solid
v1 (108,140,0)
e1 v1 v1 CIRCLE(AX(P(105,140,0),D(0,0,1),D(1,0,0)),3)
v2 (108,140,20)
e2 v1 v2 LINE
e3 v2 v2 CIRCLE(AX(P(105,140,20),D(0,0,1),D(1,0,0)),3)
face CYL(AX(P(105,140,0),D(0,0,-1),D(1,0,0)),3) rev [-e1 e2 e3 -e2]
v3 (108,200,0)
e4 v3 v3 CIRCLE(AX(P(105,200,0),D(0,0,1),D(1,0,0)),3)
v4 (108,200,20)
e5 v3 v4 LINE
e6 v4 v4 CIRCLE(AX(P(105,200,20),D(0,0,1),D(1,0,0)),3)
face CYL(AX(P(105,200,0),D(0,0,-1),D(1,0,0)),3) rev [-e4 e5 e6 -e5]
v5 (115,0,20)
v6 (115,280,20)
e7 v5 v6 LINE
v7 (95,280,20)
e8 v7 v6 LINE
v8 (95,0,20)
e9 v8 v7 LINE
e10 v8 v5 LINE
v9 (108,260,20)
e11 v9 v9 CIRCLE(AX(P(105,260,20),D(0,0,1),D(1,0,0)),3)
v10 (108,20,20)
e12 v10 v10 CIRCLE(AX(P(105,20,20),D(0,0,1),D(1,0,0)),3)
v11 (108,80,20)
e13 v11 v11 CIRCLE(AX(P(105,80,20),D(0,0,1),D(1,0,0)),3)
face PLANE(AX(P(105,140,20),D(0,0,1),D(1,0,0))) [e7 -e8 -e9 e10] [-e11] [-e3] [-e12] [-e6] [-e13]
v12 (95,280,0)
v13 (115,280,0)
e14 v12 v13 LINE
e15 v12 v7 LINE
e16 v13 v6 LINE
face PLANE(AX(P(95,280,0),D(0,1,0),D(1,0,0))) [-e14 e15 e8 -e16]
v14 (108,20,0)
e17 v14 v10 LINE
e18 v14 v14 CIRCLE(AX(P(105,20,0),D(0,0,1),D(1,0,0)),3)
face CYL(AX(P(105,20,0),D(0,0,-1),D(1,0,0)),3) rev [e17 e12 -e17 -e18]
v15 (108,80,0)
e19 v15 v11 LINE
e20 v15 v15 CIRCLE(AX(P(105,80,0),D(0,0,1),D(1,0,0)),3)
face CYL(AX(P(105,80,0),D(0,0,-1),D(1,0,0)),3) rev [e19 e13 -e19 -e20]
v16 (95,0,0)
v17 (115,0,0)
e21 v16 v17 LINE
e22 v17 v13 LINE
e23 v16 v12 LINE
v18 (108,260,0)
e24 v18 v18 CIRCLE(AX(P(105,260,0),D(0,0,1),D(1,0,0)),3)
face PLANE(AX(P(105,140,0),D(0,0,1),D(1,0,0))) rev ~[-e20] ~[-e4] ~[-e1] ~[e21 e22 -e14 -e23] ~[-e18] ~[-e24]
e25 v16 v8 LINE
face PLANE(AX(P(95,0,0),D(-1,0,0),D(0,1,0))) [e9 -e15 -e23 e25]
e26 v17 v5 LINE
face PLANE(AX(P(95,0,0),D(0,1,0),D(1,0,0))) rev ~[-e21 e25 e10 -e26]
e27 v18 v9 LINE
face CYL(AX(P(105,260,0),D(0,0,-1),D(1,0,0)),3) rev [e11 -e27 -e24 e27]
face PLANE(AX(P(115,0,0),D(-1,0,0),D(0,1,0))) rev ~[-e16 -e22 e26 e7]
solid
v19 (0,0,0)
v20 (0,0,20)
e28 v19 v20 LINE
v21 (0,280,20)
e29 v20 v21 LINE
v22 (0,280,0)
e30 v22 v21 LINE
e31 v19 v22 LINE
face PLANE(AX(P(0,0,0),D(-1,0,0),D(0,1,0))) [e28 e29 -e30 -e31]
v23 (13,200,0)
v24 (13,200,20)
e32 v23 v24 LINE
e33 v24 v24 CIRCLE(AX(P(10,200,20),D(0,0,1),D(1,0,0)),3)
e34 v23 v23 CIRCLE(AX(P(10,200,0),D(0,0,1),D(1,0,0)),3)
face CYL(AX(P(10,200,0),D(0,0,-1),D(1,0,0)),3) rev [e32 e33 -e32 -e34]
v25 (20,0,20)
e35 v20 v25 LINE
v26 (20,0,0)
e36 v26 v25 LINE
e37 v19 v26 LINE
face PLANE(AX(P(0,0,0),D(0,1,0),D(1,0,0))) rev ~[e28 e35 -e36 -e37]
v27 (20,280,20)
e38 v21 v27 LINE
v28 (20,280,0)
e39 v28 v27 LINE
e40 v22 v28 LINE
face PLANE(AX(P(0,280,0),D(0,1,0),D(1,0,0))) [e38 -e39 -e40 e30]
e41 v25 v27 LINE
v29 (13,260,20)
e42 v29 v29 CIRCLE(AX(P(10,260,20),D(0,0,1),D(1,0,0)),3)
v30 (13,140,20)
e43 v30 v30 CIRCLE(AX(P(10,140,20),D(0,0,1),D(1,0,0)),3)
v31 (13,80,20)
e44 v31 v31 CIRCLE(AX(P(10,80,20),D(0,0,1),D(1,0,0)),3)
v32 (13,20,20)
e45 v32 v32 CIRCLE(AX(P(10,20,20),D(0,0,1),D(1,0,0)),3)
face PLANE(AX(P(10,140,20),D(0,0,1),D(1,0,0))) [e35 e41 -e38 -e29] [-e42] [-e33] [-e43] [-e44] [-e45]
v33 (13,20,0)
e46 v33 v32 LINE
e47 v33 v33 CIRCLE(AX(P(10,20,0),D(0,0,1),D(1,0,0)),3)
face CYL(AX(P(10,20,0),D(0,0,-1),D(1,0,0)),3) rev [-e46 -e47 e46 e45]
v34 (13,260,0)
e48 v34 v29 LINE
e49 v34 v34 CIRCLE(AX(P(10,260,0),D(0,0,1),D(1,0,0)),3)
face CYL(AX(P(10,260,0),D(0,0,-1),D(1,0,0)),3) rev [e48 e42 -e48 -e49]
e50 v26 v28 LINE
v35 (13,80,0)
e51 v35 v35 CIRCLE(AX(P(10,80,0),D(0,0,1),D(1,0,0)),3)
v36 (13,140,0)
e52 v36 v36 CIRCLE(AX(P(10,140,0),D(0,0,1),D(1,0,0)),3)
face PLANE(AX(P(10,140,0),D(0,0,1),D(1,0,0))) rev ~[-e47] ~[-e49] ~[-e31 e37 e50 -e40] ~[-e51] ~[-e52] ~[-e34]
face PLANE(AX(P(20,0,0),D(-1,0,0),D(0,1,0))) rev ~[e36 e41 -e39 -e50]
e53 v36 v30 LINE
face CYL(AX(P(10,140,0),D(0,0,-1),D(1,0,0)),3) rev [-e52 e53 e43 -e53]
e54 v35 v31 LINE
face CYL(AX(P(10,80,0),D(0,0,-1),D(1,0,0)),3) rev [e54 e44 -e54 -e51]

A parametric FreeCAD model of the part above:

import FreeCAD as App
import Part
import Sketcher

doc = App.newDocument("Part")
body = doc.addObject("PartDesign::Body", "Body")
body.AllowCompound = True

# Sketch on XY plane
sketch1 = body.newObject("Sketcher::SketchObject", "Sketch")
sketch1.AttachmentSupport = (doc.getObject("XY_Plane"), [""])
sketch1.MapMode = "FlatFace"
sketch1.addGeometry(Part.LineSegment(App.Vector(0, 280, 0), App.Vector(0, 0, 0)), False)
sketch1.addGeometry(Part.LineSegment(App.Vector(0, 0, 0), App.Vector(20, 0, 0)), False)
sketch1.addGeometry(Part.LineSegment(App.Vector(20, 0, 0), App.Vector(20, 280, 0)), False)
sketch1.addGeometry(Part.LineSegment(App.Vector(20, 280, 0), App.Vector(0, 280, 0)), False)
sketch1.addGeometry(Part.Circle(App.Vector(10, 20, 0), App.Vector(0, 0, 1), 3), False)
sketch1.addGeometry(Part.Circle(App.Vector(10, 80, 0), App.Vector(0, 0, 1), 3), False)
sketch1.addGeometry(Part.Circle(App.Vector(10, 140, 0), App.Vector(0, 0, 1), 3), False)
sketch1.addGeometry(Part.Circle(App.Vector(10, 200, 0), App.Vector(0, 0, 1), 3), False)
sketch1.addGeometry(Part.Circle(App.Vector(10, 260, 0), App.Vector(0, 0, 1), 3), False)
sketch1.addGeometry(Part.LineSegment(App.Vector(95, 280, 0), App.Vector(95, 0, 0)), False)
sketch1.addGeometry(Part.LineSegment(App.Vector(95, 0, 0), App.Vector(115, 0, 0)), False)
sketch1.addGeometry(Part.LineSegment(App.Vector(115, 0, 0), App.Vector(115, 280, 0)), False)
sketch1.addGeometry(Part.LineSegment(App.Vector(115, 280, 0), App.Vector(95, 280, 0)), False)
sketch1.addGeometry(Part.Circle(App.Vector(105, 20, 0), App.Vector(0, 0, 1), 3), False)
sketch1.addGeometry(Part.Circle(App.Vector(105, 80, 0), App.Vector(0, 0, 1), 3), False)
sketch1.addGeometry(Part.Circle(App.Vector(105, 140, 0), App.Vector(0, 0, 1), 3), False)
sketch1.addGeometry(Part.Circle(App.Vector(105, 200, 0), App.Vector(0, 0, 1), 3), False)
sketch1.addGeometry(Part.Circle(App.Vector(105, 260, 0), App.Vector(0, 0, 1), 3), False)
sketch1.addConstraint(Sketcher.Constraint("Coincident", 0, 2, 1, 1))
sketch1.addConstraint(Sketcher.Constraint("Coincident", 1, 2, 2, 1))
sketch1.addConstraint(Sketcher.Constraint("Coincident", 2, 2, 3, 1))
sketch1.addConstraint(Sketcher.Constraint("Coincident", 3, 2, 0, 1))
sketch1.addConstraint(Sketcher.Constraint("Coincident", 9, 2, 10, 1))
sketch1.addConstraint(Sketcher.Constraint("Coincident", 10, 2, 11, 1))
sketch1.addConstraint(Sketcher.Constraint("Coincident", 11, 2, 12, 1))
sketch1.addConstraint(Sketcher.Constraint("Coincident", 12, 2, 9, 1))
sketch1.addConstraint(Sketcher.Constraint("Vertical", 0))
sketch1.addConstraint(Sketcher.Constraint("Horizontal", 1))
sketch1.addConstraint(Sketcher.Constraint("Vertical", 2))
sketch1.addConstraint(Sketcher.Constraint("Horizontal", 3))
sketch1.addConstraint(Sketcher.Constraint("Vertical", 9))
sketch1.addConstraint(Sketcher.Constraint("Horizontal", 10))
sketch1.addConstraint(Sketcher.Constraint("Vertical", 11))
sketch1.addConstraint(Sketcher.Constraint("Horizontal", 12))
sketch1.addConstraint(Sketcher.Constraint("Coincident", 0, 2, -1, 1))
sketch1.addConstraint(Sketcher.Constraint("Equal", 4, 5))
sketch1.addConstraint(Sketcher.Constraint("Equal", 5, 6))
sketch1.addConstraint(Sketcher.Constraint("Equal", 6, 7))
sketch1.addConstraint(Sketcher.Constraint("Equal", 7, 8))
sketch1.addConstraint(Sketcher.Constraint("Equal", 8, 13))
sketch1.addConstraint(Sketcher.Constraint("Equal", 13, 14))
sketch1.addConstraint(Sketcher.Constraint("Equal", 14, 15))
sketch1.addConstraint(Sketcher.Constraint("Equal", 15, 16))
sketch1.addConstraint(Sketcher.Constraint("Equal", 16, 17))
sketch1.addConstraint(Sketcher.Constraint("PointOnObject", 9, 2, -1))
sketch1.addConstraint(Sketcher.Constraint("Horizontal", 4, 3, 13, 3))
sketch1.addConstraint(Sketcher.Constraint("Horizontal", 5, 3, 14, 3))
sketch1.addConstraint(Sketcher.Constraint("Horizontal", 6, 3, 15, 3))
sketch1.addConstraint(Sketcher.Constraint("Horizontal", 7, 3, 16, 3))
sketch1.addConstraint(Sketcher.Constraint("Horizontal", 8, 3, 17, 3))
sketch1.addConstraint(Sketcher.Constraint("Horizontal", 3, 2, 11, 2))
sketch1.addConstraint(Sketcher.Constraint("Vertical", 4, 3, 5, 3))
sketch1.addConstraint(Sketcher.Constraint("Vertical", 5, 3, 6, 3))
sketch1.addConstraint(Sketcher.Constraint("Vertical", 6, 3, 7, 3))
sketch1.addConstraint(Sketcher.Constraint("Vertical", 7, 3, 8, 3))
sketch1.addConstraint(Sketcher.Constraint("Vertical", 13, 3, 14, 3))
sketch1.addConstraint(Sketcher.Constraint("Vertical", 14, 3, 15, 3))
sketch1.addConstraint(Sketcher.Constraint("Vertical", 15, 3, 16, 3))
sketch1.addConstraint(Sketcher.Constraint("Vertical", 16, 3, 17, 3))
sketch1.addConstraint(Sketcher.Constraint("Equal", 3, 10))
sketch1.addConstraint(Sketcher.Constraint("Diameter", 4, 6.0))
sketch1.addConstraint(Sketcher.Constraint("DistanceX", 1, 1, 1, 2, 20.0))
sketch1.addConstraint(Sketcher.Constraint("DistanceY", 0, 2, 0, 1, 280.0))
sketch1.addConstraint(Sketcher.Constraint("DistanceX", -1, 1, 4, 3, 10.0))
sketch1.addConstraint(Sketcher.Constraint("DistanceY", -1, 1, 4, 3, 20.0))
sketch1.addConstraint(Sketcher.Constraint("DistanceY", -1, 1, 5, 3, 80.0))
sketch1.addConstraint(Sketcher.Constraint("DistanceY", -1, 1, 6, 3, 140.0))
sketch1.addConstraint(Sketcher.Constraint("DistanceY", -1, 1, 7, 3, 200.0))
sketch1.addConstraint(Sketcher.Constraint("DistanceY", -1, 1, 8, 3, 260.0))
sketch1.addConstraint(Sketcher.Constraint("DistanceX", -1, 1, 13, 3, 105.0))
sketch1.addConstraint(Sketcher.Constraint("DistanceX", -1, 1, 9, 2, 95.0))
pad1 = body.newObject("PartDesign::Pad", "Pad")
pad1.Profile = sketch1
pad1.Length = 20

doc.recompute()
